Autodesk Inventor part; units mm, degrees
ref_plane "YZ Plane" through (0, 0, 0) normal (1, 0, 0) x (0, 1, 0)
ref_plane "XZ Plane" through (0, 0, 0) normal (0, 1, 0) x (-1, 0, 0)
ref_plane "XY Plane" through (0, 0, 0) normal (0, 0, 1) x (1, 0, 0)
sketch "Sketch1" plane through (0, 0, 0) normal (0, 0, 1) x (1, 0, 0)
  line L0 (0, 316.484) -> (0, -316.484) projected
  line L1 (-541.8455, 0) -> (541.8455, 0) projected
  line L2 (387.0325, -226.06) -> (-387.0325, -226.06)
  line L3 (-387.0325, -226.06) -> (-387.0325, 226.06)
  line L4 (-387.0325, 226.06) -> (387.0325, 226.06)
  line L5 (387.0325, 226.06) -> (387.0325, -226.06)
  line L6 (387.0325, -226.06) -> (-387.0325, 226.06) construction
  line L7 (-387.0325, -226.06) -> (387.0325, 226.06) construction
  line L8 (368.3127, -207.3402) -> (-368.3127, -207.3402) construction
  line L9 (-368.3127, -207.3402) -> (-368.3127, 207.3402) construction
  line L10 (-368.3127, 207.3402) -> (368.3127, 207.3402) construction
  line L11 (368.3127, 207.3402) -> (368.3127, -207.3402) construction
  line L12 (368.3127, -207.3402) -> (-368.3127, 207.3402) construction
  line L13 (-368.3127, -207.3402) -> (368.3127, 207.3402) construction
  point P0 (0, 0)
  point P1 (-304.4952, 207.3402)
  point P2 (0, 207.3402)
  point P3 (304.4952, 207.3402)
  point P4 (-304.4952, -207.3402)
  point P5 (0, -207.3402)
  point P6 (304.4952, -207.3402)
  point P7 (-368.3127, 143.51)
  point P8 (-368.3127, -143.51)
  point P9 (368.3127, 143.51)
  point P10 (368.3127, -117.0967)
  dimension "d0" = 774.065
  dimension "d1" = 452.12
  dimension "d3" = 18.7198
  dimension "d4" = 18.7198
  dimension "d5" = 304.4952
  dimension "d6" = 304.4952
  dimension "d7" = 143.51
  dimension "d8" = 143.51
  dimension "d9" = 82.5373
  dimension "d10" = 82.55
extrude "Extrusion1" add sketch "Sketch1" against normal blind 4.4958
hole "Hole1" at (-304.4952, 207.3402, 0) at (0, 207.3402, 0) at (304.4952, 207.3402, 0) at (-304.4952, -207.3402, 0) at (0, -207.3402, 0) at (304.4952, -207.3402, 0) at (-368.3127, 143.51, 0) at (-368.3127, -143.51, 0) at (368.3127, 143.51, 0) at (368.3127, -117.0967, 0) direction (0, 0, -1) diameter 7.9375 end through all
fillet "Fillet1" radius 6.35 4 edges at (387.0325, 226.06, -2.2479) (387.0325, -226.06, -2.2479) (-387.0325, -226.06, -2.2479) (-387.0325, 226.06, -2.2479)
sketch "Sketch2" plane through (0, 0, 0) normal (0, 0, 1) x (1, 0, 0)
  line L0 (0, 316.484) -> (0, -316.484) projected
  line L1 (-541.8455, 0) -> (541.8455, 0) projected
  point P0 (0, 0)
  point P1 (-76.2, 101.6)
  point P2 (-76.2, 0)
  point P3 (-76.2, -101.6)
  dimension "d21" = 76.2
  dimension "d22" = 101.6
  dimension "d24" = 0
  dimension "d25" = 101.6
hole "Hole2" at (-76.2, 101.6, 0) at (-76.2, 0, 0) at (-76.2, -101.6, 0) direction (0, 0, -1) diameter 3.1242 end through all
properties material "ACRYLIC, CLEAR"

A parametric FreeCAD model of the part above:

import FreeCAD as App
import Part
import Sketcher

V = App.Vector
Q = App.Units.Quantity


def edges_at(feature, points):
    """Names of the edges that pass closest to the given points."""
    edges = feature.Shape.Edges
    near = lambda p: min(range(len(edges)), key=lambda i: edges[i].distToShape(Part.Vertex(*p))[0])
    return sorted({f"Edge{near(p) + 1}" for p in points})

doc = App.newDocument("Part")
body = doc.addObject("PartDesign::Body", "Body")

sketch1 = body.newObject("Sketcher::SketchObject", "Sketch")
sketch1.AttachmentSupport = (doc.getObject("XY_Plane"), [""])
sketch1.MapMode = "FlatFace"
sketch1.addGeometry([
    Part.LineSegment(V(387.0325, 226.06, 0), V(-387.0325, 226.06, 0)),
    Part.LineSegment(V(-387.0325, 226.06, 0), V(-387.0325, -226.06, 0)),
    Part.LineSegment(V(-387.0325, -226.06, 0), V(387.0325, -226.06, 0)),
    Part.LineSegment(V(387.0325, -226.06, 0), V(387.0325, 226.06, 0)),
], False)
sketch1.addConstraint([
    Sketcher.Constraint("Coincident", 0, 2, 1, 1),
    Sketcher.Constraint("Coincident", 1, 2, 2, 1),
    Sketcher.Constraint("Coincident", 2, 2, 3, 1),
    Sketcher.Constraint("Coincident", 3, 2, 0, 1),
    Sketcher.Constraint("Horizontal", 0),
    Sketcher.Constraint("Vertical", 1),
    Sketcher.Constraint("Horizontal", 2),
    Sketcher.Constraint("Vertical", 3),
    Sketcher.Constraint("Symmetric", 0, 2, 2, 2, -1, 1),
    Sketcher.Constraint("DistanceY", 1, 2, 1, 1, Q("17.8 in")),
    Sketcher.Constraint("DistanceX", 0, 2, 0, 1, Q("30.475 in")),
])
pad1 = body.newObject("PartDesign::Pad", "Pad")
pad1.Profile = sketch1
pad1.Length = Q("0.177 in")
pad1.Reversed = True

sketch2 = body.newObject("Sketcher::SketchObject", "Sketch001")
sketch2.AttachmentSupport = (doc.getObject("XY_Plane"), [""])
sketch2.MapMode = "FlatFace"
sketch2.addGeometry([
    Part.Circle(V(-304.4952, 207.3402, 0), V(0, 0, 1), 3.96875),
    Part.Circle(V(0, 207.3402, 0), V(0, 0, 1), 3.96875),
    Part.Circle(V(304.4952, 207.3402, 0), V(0, 0, 1), 3.96875),
    Part.Circle(V(-304.4952, -207.3402, 0), V(0, 0, 1), 3.96875),
    Part.Circle(V(0, -207.3402, 0), V(0, 0, 1), 3.96875),
    Part.Circle(V(304.4952, -207.3402, 0), V(0, 0, 1), 3.96875),
    Part.Circle(V(-368.3127, 143.51, 0), V(0, 0, 1), 3.96875),
    Part.Circle(V(-368.3127, -143.51, 0), V(0, 0, 1), 3.96875),
    Part.Circle(V(368.3127, 143.51, 0), V(0, 0, 1), 3.96875),
    Part.Circle(V(368.3127, -117.0967, 0), V(0, 0, 1), 3.96875),
], False)
sketch2.addConstraint([
    Sketcher.Constraint("Equal", 0, 1),
    Sketcher.Constraint("Equal", 1, 2),
    Sketcher.Constraint("Equal", 2, 3),
    Sketcher.Constraint("Equal", 3, 4),
    Sketcher.Constraint("Equal", 4, 5),
    Sketcher.Constraint("Equal", 5, 6),
    Sketcher.Constraint("Equal", 6, 7),
    Sketcher.Constraint("Equal", 7, 8),
    Sketcher.Constraint("Equal", 8, 9),
    Sketcher.Constraint("Symmetric", 2, 3, 3, 3, -1, 1),
    Sketcher.Constraint("Symmetric", 1, 3, 4, 3, -1, 1),
    Sketcher.Constraint("Symmetric", 0, 3, 5, 3, -1, 1),
    Sketcher.Constraint("Symmetric", 7, 3, 8, 3, -1, 1),
    Sketcher.Constraint("Symmetric", 0, 3, 2, 3, -2),
    Sketcher.Constraint("Symmetric", 6, 3, 8, 3, -2),
    Sketcher.Constraint("PointOnObject", 1, 3, -2),
    Sketcher.Constraint("Horizontal", 0, 3, 1, 3),
    Sketcher.Constraint("Vertical", 8, 3, 9, 3),
    Sketcher.Constraint("Diameter", 0, Q("0.3125 in")),
    Sketcher.Constraint("DistanceY", 7, 3, 6, 3, Q("11.3 in")),
    Sketcher.Constraint("DistanceX", 0, 3, -1, 1, Q("11.988 in")),
    Sketcher.Constraint("DistanceY", -1, 1, 0, 3, Q("8.163 in")),
    Sketcher.Constraint("DistanceX", 6, 3, -1, 1, Q("14.5005 in")),
    Sketcher.Constraint("DistanceY", 9, 3, -1, 1, Q("4.6101 in")),
])
doc.recompute()
hole = body.newObject("PartDesign::Hole", "Hole")
hole.Profile = sketch2
hole.ThreadType = "None"
hole.Diameter = Q("0.3125 in")
hole.DepthType = "ThroughAll"
doc.recompute()

fillet = body.newObject("PartDesign::Fillet", "Fillet")
fillet.Base = (hole, edges_at(hole, [
    (387.033, 226.06, -2.248),
    (387.033, -226.06, -2.248),
    (-387.033, -226.06, -2.248),
    (-387.033, 226.06, -2.248),
]))
fillet.Radius = Q("0.25 in")

sketch3 = body.newObject("Sketcher::SketchObject", "Sketch002")
sketch3.AttachmentSupport = (doc.getObject("XY_Plane"), [""])
sketch3.MapMode = "FlatFace"
sketch3.addGeometry([
    Part.Circle(V(-76.2, 101.6, 0), V(0, 0, 1), 1.5621),
    Part.Circle(V(-76.2, 0, 0), V(0, 0, 1), 1.5621),
    Part.Circle(V(-76.2, -101.6, 0), V(0, 0, 1), 1.5621),
], False)
sketch3.addConstraint([
    Sketcher.Constraint("Equal", 0, 1),
    Sketcher.Constraint("Equal", 1, 2),
    Sketcher.Constraint("Symmetric", 0, 3, 2, 3, -1),
    Sketcher.Constraint("PointOnObject", 1, 3, -1),
    Sketcher.Constraint("Vertical", 0, 3, 1, 3),
    Sketcher.Constraint("Diameter", 0, Q("0.123 in")),
    Sketcher.Constraint("DistanceX", 0, 3, -1, 1, Q("3 in")),
    Sketcher.Constraint("DistanceY", -1, 1, 0, 3, Q("4 in")),
])
doc.recompute()
hole2 = body.newObject("PartDesign::Hole", "Hole001")
hole2.Profile = sketch3
hole2.ThreadType = "None"
hole2.Diameter = Q("0.123 in")
hole2.DepthType = "ThroughAll"

doc.recompute()
